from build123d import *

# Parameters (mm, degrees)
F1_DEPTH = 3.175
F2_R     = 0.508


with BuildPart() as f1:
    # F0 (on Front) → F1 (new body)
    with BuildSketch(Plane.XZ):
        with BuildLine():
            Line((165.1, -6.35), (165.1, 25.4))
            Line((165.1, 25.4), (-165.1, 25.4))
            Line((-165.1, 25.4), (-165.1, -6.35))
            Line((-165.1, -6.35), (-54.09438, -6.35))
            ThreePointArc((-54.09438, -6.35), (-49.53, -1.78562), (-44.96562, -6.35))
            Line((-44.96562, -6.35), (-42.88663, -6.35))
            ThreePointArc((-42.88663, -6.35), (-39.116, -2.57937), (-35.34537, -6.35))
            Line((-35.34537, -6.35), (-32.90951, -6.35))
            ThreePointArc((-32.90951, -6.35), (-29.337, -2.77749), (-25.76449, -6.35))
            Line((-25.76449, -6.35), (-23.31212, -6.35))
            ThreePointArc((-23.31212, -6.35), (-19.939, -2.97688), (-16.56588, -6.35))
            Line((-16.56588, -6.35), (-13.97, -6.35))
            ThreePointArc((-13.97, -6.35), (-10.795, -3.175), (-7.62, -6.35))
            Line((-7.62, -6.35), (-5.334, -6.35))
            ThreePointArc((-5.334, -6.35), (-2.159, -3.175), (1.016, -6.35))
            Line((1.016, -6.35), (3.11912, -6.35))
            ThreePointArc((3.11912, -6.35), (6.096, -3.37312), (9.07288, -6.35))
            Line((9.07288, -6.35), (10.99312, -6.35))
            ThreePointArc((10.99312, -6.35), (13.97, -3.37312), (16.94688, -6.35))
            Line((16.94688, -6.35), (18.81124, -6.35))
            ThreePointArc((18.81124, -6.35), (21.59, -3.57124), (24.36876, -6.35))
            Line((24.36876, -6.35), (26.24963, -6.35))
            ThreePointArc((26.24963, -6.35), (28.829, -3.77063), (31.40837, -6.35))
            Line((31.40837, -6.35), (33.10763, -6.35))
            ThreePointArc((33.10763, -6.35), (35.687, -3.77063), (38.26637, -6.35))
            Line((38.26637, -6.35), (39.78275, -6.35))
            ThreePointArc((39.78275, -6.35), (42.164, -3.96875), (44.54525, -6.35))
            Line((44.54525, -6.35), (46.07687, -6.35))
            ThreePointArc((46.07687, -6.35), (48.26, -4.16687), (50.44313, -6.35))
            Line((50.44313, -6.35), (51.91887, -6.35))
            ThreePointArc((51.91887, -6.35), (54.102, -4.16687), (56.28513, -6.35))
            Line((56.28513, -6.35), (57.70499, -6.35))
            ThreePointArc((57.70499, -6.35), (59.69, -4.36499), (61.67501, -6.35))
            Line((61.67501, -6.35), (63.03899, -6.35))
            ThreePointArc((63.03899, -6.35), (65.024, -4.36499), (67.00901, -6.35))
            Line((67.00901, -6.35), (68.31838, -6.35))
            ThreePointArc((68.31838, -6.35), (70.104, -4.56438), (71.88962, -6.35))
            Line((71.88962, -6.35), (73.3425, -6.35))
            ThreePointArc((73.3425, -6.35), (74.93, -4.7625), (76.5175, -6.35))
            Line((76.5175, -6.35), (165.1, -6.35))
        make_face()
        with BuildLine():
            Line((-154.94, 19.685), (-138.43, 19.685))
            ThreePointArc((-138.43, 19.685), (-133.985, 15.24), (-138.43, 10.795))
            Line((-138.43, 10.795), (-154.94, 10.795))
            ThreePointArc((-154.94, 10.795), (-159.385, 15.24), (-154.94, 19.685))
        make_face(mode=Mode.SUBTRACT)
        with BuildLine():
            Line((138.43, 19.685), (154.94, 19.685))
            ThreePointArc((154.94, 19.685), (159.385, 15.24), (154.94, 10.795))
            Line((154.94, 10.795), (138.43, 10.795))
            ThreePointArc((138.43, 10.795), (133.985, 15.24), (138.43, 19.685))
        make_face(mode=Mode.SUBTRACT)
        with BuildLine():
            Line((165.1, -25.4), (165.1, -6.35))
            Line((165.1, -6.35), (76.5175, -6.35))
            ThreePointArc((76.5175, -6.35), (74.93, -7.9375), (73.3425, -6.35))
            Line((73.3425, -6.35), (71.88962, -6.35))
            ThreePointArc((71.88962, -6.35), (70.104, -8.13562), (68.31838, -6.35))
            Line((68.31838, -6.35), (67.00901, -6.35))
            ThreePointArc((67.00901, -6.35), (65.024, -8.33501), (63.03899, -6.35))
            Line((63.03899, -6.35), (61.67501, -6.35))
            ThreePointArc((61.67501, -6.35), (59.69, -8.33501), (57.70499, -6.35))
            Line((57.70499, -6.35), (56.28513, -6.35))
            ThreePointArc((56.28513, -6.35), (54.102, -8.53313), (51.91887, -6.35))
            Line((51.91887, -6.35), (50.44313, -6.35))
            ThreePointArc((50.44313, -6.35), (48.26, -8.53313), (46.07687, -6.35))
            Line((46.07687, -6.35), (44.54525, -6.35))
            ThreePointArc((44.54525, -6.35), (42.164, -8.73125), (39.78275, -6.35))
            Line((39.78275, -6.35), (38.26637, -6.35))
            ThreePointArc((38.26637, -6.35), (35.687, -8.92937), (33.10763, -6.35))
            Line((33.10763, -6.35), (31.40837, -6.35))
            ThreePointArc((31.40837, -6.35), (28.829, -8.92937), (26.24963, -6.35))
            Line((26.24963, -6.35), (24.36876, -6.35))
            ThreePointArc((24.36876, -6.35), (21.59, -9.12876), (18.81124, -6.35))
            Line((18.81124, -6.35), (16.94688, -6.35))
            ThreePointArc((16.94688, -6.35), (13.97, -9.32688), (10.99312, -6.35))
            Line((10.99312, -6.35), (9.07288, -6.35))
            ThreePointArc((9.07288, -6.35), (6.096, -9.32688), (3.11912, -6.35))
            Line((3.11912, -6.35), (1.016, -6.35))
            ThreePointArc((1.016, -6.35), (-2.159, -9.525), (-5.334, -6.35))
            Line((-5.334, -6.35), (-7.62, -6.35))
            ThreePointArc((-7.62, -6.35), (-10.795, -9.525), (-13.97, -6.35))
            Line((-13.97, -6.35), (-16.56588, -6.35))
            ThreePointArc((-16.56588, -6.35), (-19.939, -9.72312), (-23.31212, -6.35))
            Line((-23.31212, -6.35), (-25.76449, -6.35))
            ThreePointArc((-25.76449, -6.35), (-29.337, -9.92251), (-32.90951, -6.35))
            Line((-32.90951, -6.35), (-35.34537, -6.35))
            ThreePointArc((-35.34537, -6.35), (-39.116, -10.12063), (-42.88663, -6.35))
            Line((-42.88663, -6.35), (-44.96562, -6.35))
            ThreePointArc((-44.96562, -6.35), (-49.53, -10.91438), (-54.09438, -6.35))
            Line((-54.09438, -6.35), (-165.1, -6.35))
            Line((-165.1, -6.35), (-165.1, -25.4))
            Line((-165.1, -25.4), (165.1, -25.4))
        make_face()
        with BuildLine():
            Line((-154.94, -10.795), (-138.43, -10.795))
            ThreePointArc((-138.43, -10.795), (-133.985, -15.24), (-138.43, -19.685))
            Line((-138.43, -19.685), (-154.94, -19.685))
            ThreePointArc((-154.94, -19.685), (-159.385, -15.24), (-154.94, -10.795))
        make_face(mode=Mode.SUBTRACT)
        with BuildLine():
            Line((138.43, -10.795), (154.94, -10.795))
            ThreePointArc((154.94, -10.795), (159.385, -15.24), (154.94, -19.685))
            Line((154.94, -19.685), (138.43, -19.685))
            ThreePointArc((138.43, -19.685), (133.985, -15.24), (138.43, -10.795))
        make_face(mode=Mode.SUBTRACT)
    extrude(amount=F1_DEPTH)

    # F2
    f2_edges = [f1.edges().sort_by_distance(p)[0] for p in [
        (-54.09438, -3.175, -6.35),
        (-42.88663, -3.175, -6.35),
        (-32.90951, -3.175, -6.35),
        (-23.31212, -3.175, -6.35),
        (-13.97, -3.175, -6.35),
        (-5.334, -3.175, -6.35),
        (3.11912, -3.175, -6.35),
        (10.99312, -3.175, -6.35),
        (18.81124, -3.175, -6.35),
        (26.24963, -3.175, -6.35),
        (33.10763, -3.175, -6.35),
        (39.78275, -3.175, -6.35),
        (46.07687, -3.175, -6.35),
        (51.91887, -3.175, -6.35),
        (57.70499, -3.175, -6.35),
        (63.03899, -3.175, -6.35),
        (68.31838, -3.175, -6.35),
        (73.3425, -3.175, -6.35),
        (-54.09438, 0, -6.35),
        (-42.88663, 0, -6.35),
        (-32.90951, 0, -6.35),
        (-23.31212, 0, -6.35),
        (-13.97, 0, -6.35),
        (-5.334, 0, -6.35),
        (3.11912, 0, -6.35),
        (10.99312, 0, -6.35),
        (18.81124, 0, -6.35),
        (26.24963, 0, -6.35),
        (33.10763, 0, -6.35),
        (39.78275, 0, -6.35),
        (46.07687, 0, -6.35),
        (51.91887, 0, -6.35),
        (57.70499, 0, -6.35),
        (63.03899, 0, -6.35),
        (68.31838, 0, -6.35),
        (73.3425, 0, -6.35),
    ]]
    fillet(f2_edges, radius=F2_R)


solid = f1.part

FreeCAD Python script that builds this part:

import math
import FreeCAD as App
import Part
import Sketcher

V = App.Vector
Q = App.Units.Quantity


def edges_at(feature, points):
    """Names of the edges that pass closest to the given points."""
    edges = feature.Shape.Edges
    near = lambda p: min(range(len(edges)), key=lambda i: edges[i].distToShape(Part.Vertex(*p))[0])
    return sorted({f"Edge{near(p) + 1}" for p in points})


def add_polygon(sketch, points):
    """Adds a closed chain of lines whose ends are joined by coincident constraints."""
    first, n = sketch.GeometryCount, len(points)
    for a, b in zip(points, points[1:] + points[:1]):
        sketch.addGeometry(Part.LineSegment(App.Vector(*a, 0), App.Vector(*b, 0)), False)
    for i in range(n):
        sketch.addConstraint(Sketcher.Constraint("Coincident", first + i, 2, first + (i + 1) % n, 1))

doc = App.newDocument("Part")
body = doc.addObject("PartDesign::Body", "Body")

sketch1 = body.newObject("Sketcher::SketchObject", "Sketch")
sketch1.AttachmentSupport = (doc.getObject("XZ_Plane"), [""])
sketch1.MapMode = "FlatFace"
add_polygon(sketch1, [(165.1, 25.4), (-165.1, 25.4), (-165.1, -25.4), (165.1, -25.4)])
sketch1.addGeometry(Part.ArcOfCircle(Part.Circle(V(-154.9, -15.2, 0), V(0, 0, 1), 4.4), math.radians(90), math.radians(270)), False)
sketch1.addGeometry(Part.LineSegment(V(-154.9, -10.8, 0), V(-138.4, -10.8, 0)), False)
sketch1.addGeometry(Part.ArcOfCircle(Part.Circle(V(-138.4, -15.2, 0), V(0, 0, 1), 4.4), math.radians(-90), math.radians(90)), False)
sketch1.addGeometry(Part.LineSegment(V(-138.4, -19.7, 0), V(-154.9, -19.7, 0)), False)
sketch1.addGeometry(Part.Circle(V(-49.5, -6.3, 0), V(0, 0, 1), 4.6), False)
sketch1.addGeometry(Part.Circle(V(-39.1, -6.3, 0), V(0, 0, 1), 3.8), False)
sketch1.addGeometry(Part.Circle(V(-29.3, -6.3, 0), V(0, 0, 1), 3.6), False)
sketch1.addGeometry(Part.Circle(V(-19.9, -6.3, 0), V(0, 0, 1), 3.4), False)
sketch1.addGeometry(Part.Circle(V(-10.8, -6.3, 0), V(0, 0, 1), 3.2), False)
sketch1.addGeometry(Part.Circle(V(-2.2, -6.3, 0), V(0, 0, 1), 3.2), False)
sketch1.addGeometry(Part.ArcOfCircle(Part.Circle(V(138.4, -15.2, 0), V(0, 0, 1), 4.4), math.radians(90), math.radians(270)), False)
sketch1.addGeometry(Part.LineSegment(V(138.4, -10.8, 0), V(154.9, -10.8, 0)), False)
sketch1.addGeometry(Part.ArcOfCircle(Part.Circle(V(154.9, -15.2, 0), V(0, 0, 1), 4.4), math.radians(-90), math.radians(90)), False)
sketch1.addGeometry(Part.LineSegment(V(154.9, -19.7, 0), V(138.4, -19.7, 0)), False)
sketch1.addGeometry(Part.Circle(V(6.1, -6.3, 0), V(0, 0, 1), 3), False)
sketch1.addGeometry(Part.Circle(V(14, -6.3, 0), V(0, 0, 1), 3), False)
sketch1.addGeometry(Part.Circle(V(21.6, -6.3, 0), V(0, 0, 1), 2.8), False)
sketch1.addGeometry(Part.Circle(V(28.8, -6.3, 0), V(0, 0, 1), 2.6), False)
sketch1.addGeometry(Part.Circle(V(35.7, -6.3, 0), V(0, 0, 1), 2.6), False)
sketch1.addGeometry(Part.Circle(V(42.2, -6.3, 0), V(0, 0, 1), 2.4), False)
sketch1.addGeometry(Part.Circle(V(48.3, -6.3, 0), V(0, 0, 1), 2.2), False)
sketch1.addGeometry(Part.Circle(V(54.1, -6.3, 0), V(0, 0, 1), 2.2), False)
sketch1.addGeometry(Part.Circle(V(59.7, -6.3, 0), V(0, 0, 1), 2), False)
sketch1.addGeometry(Part.Circle(V(65, -6.3, 0), V(0, 0, 1), 2), False)
sketch1.addGeometry(Part.Circle(V(70.1, -6.3, 0), V(0, 0, 1), 1.8), False)
sketch1.addGeometry(Part.Circle(V(74.9, -6.3, 0), V(0, 0, 1), 1.6), False)
sketch1.addGeometry(Part.ArcOfCircle(Part.Circle(V(-154.9, 15.2, 0), V(0, 0, 1), 4.4), math.radians(90), math.radians(270)), False)
sketch1.addGeometry(Part.LineSegment(V(-154.9, 19.7, 0), V(-138.4, 19.7, 0)), False)
sketch1.addGeometry(Part.ArcOfCircle(Part.Circle(V(-138.4, 15.2, 0), V(0, 0, 1), 4.4), math.radians(-90), math.radians(90)), False)
sketch1.addGeometry(Part.LineSegment(V(-138.4, 10.8, 0), V(-154.9, 10.8, 0)), False)
sketch1.addGeometry(Part.ArcOfCircle(Part.Circle(V(138.4, 15.2, 0), V(0, 0, 1), 4.4), math.radians(90), math.radians(270)), False)
sketch1.addGeometry(Part.LineSegment(V(138.4, 19.7, 0), V(154.9, 19.7, 0)), False)
sketch1.addGeometry(Part.ArcOfCircle(Part.Circle(V(154.9, 15.2, 0), V(0, 0, 1), 4.4), math.radians(-90), math.radians(90)), False)
sketch1.addGeometry(Part.LineSegment(V(154.9, 10.8, 0), V(138.4, 10.8, 0)), False)
sketch1.addConstraint([
    Sketcher.Constraint("Tangent", 4, 1, 5, 1),
    Sketcher.Constraint("Tangent", 5, 2, 6, 2),
    Sketcher.Constraint("Tangent", 6, 1, 7, 1),
    Sketcher.Constraint("Tangent", 7, 2, 4, 2),
    Sketcher.Constraint("Tangent", 14, 1, 15, 1),
    Sketcher.Constraint("Tangent", 15, 2, 16, 2),
    Sketcher.Constraint("Tangent", 16, 1, 17, 1),
    Sketcher.Constraint("Tangent", 17, 2, 14, 2),
    Sketcher.Constraint("Tangent", 30, 1, 31, 1),
    Sketcher.Constraint("Tangent", 31, 2, 32, 2),
    Sketcher.Constraint("Tangent", 32, 1, 33, 1),
    Sketcher.Constraint("Tangent", 33, 2, 30, 2),
    Sketcher.Constraint("Tangent", 34, 1, 35, 1),
    Sketcher.Constraint("Tangent", 35, 2, 36, 2),
    Sketcher.Constraint("Tangent", 36, 1, 37, 1),
    Sketcher.Constraint("Tangent", 37, 2, 34, 2),
    Sketcher.Constraint("Horizontal", 0),
    Sketcher.Constraint("Vertical", 1),
    Sketcher.Constraint("Horizontal", 2),
    Sketcher.Constraint("Vertical", 3),
    Sketcher.Constraint("Horizontal", 5),
    Sketcher.Constraint("Horizontal", 7),
    Sketcher.Constraint("Horizontal", 15),
    Sketcher.Constraint("Horizontal", 17),
    Sketcher.Constraint("Horizontal", 31),
    Sketcher.Constraint("Horizontal", 33),
    Sketcher.Constraint("Horizontal", 35),
    Sketcher.Constraint("Horizontal", 37),
    Sketcher.Constraint("Equal", 12, 13),
    Sketcher.Constraint("Equal", 6, 14),
    Sketcher.Constraint("Equal", 18, 19),
    Sketcher.Constraint("Equal", 21, 22),
    Sketcher.Constraint("Equal", 24, 25),
    Sketcher.Constraint("Equal", 26, 27),
    Sketcher.Constraint("Equal", 16, 30),
    Sketcher.Constraint("Equal", 32, 34),
    Sketcher.Constraint("Symmetric", 16, 3, 30, 3, -1, 1),
    Sketcher.Constraint("Symmetric", 6, 3, 34, 3, -1, 1),
    Sketcher.Constraint("Symmetric", 0, 2, 2, 2, -1, 1),
    Sketcher.Constraint("Symmetric", 6, 3, 14, 3, -2),
    Sketcher.Constraint("Horizontal", 8, 3, 9, 3),
    Sketcher.Constraint("Horizontal", 9, 3, 10, 3),
    Sketcher.Constraint("Horizontal", 10, 3, 11, 3),
    Sketcher.Constraint("Horizontal", 11, 3, 12, 3),
    Sketcher.Constraint("Horizontal", 12, 3, 13, 3),
    Sketcher.Constraint("Horizontal", 13, 3, 18, 3),
    Sketcher.Constraint("Horizontal", 18, 3, 19, 3),
    Sketcher.Constraint("Horizontal", 19, 3, 20, 3),
    Sketcher.Constraint("Horizontal", 20, 3, 21, 3),
    Sketcher.Constraint("Horizontal", 21, 3, 22, 3),
    Sketcher.Constraint("Horizontal", 22, 3, 23, 3),
    Sketcher.Constraint("Horizontal", 23, 3, 24, 3),
    Sketcher.Constraint("Horizontal", 24, 3, 25, 3),
    Sketcher.Constraint("Horizontal", 25, 3, 26, 3),
    Sketcher.Constraint("Horizontal", 26, 3, 27, 3),
    Sketcher.Constraint("Horizontal", 27, 3, 28, 3),
    Sketcher.Constraint("Horizontal", 28, 3, 29, 3),
    Sketcher.Constraint("Vertical", 4, 3, 30, 3),
    Sketcher.Constraint("Vertical", 6, 3, 32, 3),
    Sketcher.Constraint("Vertical", 16, 3, 36, 3),
    Sketcher.Constraint("Diameter", 12, Q("0.25 in")),
    Sketcher.Constraint("DistanceX", 0, 2, 0, 1, Q("13 in")),
    Sketcher.Constraint("DistanceY", 1, 2, 1, 1, Q("2 in")),
    Sketcher.Constraint("Diameter", 23, Q("0.1875 in")),
    Sketcher.Constraint("Diameter", 29, Q("0.125 in")),
    Sketcher.Constraint("Radius", 4, Q("0.175 in")),
    Sketcher.Constraint("Diameter", 8, Q("0.3594 in")),
    Sketcher.Constraint("Diameter", 9, Q("0.2969 in")),
    Sketcher.Constraint("Diameter", 10, Q("0.2813 in")),
    Sketcher.Constraint("Diameter", 11, Q("0.2656 in")),
    Sketcher.Constraint("Diameter", 18, Q("0.2344 in")),
    Sketcher.Constraint("Diameter", 20, Q("0.2188 in")),
    Sketcher.Constraint("Diameter", 21, Q("0.2031 in")),
    Sketcher.Constraint("Diameter", 24, Q("0.1719 in")),
    Sketcher.Constraint("Diameter", 26, Q("0.1563 in")),
    Sketcher.Constraint("Diameter", 28, Q("0.1406 in")),
    Sketcher.Constraint("DistanceX", 5, 1, 5, 2, Q("0.65 in")),
    Sketcher.Constraint("DistanceX", 4, 3, -1, 1, Q("6.1 in")),
    Sketcher.Constraint("DistanceY", 4, 3, -1, 1, Q("0.6 in")),
    Sketcher.Constraint("DistanceX", -1, 1, 24, 3, Q("1.9 in")),
    Sketcher.Constraint("DistanceX", 6, 3, 8, 3, Q("3.5 in")),
    Sketcher.Constraint("DistanceX", 11, 3, 13, 3, Q("0.7 in")),
    Sketcher.Constraint("DistanceX", 19, 3, 20, 3, Q("0.3 in")),
    Sketcher.Constraint("DistanceX", 23, 3, 27, 3, Q("0.9 in")),
    Sketcher.Constraint("DistanceX", 27, 3, 28, 3, Q("0.2 in")),
    Sketcher.Constraint("DistanceX", 26, 3, 29, 3, Q("0.6 in")),
    Sketcher.Constraint("DistanceX", 29, 3, 34, 3, Q("2.5 in")),
    Sketcher.Constraint("DistanceY", 8, 3, -1, 1, Q("0.25 in")),
    Sketcher.Constraint("DistanceX", 9, 3, -1, 1, Q("1.54 in")),
    Sketcher.Constraint("DistanceX", -1, 1, 18, 3, Q("0.24 in")),
    Sketcher.Constraint("DistanceX", -1, 1, 19, 3, Q("0.55 in")),
    Sketcher.Constraint("DistanceX", -1, 1, 23, 3, Q("1.66 in")),
    Sketcher.Constraint("DistanceX", -1, 1, 25, 3, Q("2.13 in")),
    Sketcher.Constraint("DistanceX", 10, 3, 11, 3, Q("0.37 in")),
    Sketcher.Constraint("DistanceX", 11, 3, 12, 3, Q("0.36 in")),
    Sketcher.Constraint("DistanceX", 13, 3, 21, 3, Q("1.22 in")),
    Sketcher.Constraint("DistanceX", 21, 3, 22, 3, Q("0.27 in")),
    Sketcher.Constraint("DistanceX", 10, 3, -1, 1, Q("1.155 in")),
])
pad1 = body.newObject("PartDesign::Pad", "Pad")
pad1.Profile = sketch1
pad1.Length = Q("0.125 in")
doc.recompute()

fillet = body.newObject("PartDesign::Fillet", "Fillet")
fillet.Base = (pad1, edges_at(pad1, [
    (-54.094, -3.175, -6.35),
    (-42.887, -3.175, -6.35),
    (-32.91, -3.175, -6.35),
    (-23.312, -3.175, -6.35),
    (-13.97, -3.175, -6.35),
    (-5.334, -3.175, -6.35),
    (3.119, -3.175, -6.35),
    (10.993, -3.175, -6.35),
    (18.811, -3.175, -6.35),
    (26.25, -3.175, -6.35),
    (33.108, -3.175, -6.35),
    (39.783, -3.175, -6.35),
    (46.077, -3.175, -6.35),
    (51.919, -3.175, -6.35),
    (57.705, -3.175, -6.35),
    (63.039, -3.175, -6.35),
    (68.318, -3.175, -6.35),
    (73.343, -3.175, -6.35),
    (-54.094, 0, -6.35),
    (-42.887, 0, -6.35),
    (-32.91, 0, -6.35),
    (-23.312, 0, -6.35),
    (-13.97, 0, -6.35),
    (-5.334, 0, -6.35),
    (3.119, 0, -6.35),
    (10.993, 0, -6.35),
    (18.811, 0, -6.35),
    (26.25, 0, -6.35),
    (33.108, 0, -6.35),
    (39.783, 0, -6.35),
    (46.077, 0, -6.35),
    (51.919, 0, -6.35),
    (57.705, 0, -6.35),
    (63.039, 0, -6.35),
    (68.318, 0, -6.35),
    (73.343, 0, -6.35),
]))
fillet.Radius = Q("0.02 in")

doc.recompute()
